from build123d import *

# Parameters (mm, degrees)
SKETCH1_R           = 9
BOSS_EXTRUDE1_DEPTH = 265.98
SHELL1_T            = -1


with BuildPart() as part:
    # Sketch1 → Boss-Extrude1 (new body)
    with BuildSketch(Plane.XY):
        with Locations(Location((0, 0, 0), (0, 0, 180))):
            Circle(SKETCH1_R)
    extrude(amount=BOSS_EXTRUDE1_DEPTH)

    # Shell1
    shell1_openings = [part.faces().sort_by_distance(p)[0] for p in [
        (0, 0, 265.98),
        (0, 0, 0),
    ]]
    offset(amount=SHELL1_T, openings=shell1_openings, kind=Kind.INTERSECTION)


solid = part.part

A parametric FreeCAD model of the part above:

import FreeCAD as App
import Part
import Sketcher


def faces_at(feature, points):
    """Names of the faces that lie closest to the given points."""
    faces = feature.Shape.Faces
    near = lambda p: min(range(len(faces)), key=lambda i: faces[i].distToShape(Part.Vertex(*p))[0])
    return sorted({f"Face{near(p) + 1}" for p in points})

doc = App.newDocument("Part")
params = doc.addObject("Spreadsheet::Sheet", "Params")
for row, (alias, value) in enumerate([
    ("sketch1_diameter", "18 mm"),
    ("pad1_length", "265.98 mm"),
    ("thickness_wall", "1 mm"),
], start=1):
    params.set(f"A{row}", alias)
    params.set(f"B{row}", "=" + value)
    params.setAlias(f"B{row}", alias)

body = doc.addObject("PartDesign::Body", "Body")

# Sketch on XY plane
sketch1 = doc.addObject("Sketcher::SketchObject", "Sketch")
body.addObject(sketch1)
sketch1.AttachmentSupport = (doc.XY_Plane, [""])
sketch1.MapMode = "FlatFace"
sketch1.addGeometry(Part.Circle(App.Vector(0, 0, 0), App.Vector(0, 0, 1), 9), False)
sketch1.addConstraint([
    Sketcher.Constraint("Coincident", 0, 3, -1, 1),
    Sketcher.Constraint("Diameter", 0, 18.0),
])
sketch1.setExpression("Constraints[1]", "Params.sketch1_diameter")
pad1 = doc.addObject("PartDesign::Pad", "Pad")
body.addObject(pad1)
pad1.Profile = sketch1
pad1.setExpression("Length", "Params.pad1_length")
doc.recompute()

thickness = doc.addObject("PartDesign::Thickness", "Thickness")
body.addObject(thickness)
thickness.Base = (pad1, faces_at(pad1, [(0, 0, 265.98), (0, 0, 0)]))
thickness.setExpression("Value", "Params.thickness_wall")
thickness.Reversed = True
thickness.Join = "Intersection"

doc.recompute()
